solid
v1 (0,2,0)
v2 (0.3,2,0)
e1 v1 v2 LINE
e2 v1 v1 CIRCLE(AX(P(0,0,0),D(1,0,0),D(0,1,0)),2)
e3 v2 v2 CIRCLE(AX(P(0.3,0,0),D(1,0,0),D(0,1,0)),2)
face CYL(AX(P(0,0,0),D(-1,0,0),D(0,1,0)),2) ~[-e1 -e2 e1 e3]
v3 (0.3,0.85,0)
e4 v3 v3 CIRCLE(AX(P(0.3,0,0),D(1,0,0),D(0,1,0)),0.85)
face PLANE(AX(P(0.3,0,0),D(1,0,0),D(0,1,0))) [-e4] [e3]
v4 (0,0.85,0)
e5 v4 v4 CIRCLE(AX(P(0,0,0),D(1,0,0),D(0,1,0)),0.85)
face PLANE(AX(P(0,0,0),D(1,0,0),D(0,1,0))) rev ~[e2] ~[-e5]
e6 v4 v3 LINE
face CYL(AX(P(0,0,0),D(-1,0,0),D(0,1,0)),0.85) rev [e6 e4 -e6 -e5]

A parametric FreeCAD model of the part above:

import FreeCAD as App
import Part
import Sketcher
from FreeCAD import Vector

doc = App.newDocument("Part")
body = doc.addObject("PartDesign::Body", "Body")

# Sketch on YZ plane
sketch1 = doc.addObject("Sketcher::SketchObject", "Sketch")
body.addObject(sketch1)
sketch1.AttachmentSupport = (doc.YZ_Plane, [""])
sketch1.MapMode = "FlatFace"
sketch1.addGeometry([
    Part.Circle(Vector(0, 0, 0), Vector(0, 0, 1), 2),
    Part.Circle(Vector(0, 0, 0), Vector(0, 0, 1), 0.8),
], False)
sketch1.addConstraint([
    Sketcher.Constraint("Coincident", 0, 3, -1, 1),
    Sketcher.Constraint("Coincident", 1, 3, -1, 1),
    Sketcher.Constraint("Diameter", 0, 4.0),
    Sketcher.Constraint("Diameter", 1, 1.7),
])
pad1 = doc.addObject("PartDesign::Pad", "Pad")
body.addObject(pad1)
pad1.Profile = sketch1
pad1.Length = 0.3

doc.recompute()
